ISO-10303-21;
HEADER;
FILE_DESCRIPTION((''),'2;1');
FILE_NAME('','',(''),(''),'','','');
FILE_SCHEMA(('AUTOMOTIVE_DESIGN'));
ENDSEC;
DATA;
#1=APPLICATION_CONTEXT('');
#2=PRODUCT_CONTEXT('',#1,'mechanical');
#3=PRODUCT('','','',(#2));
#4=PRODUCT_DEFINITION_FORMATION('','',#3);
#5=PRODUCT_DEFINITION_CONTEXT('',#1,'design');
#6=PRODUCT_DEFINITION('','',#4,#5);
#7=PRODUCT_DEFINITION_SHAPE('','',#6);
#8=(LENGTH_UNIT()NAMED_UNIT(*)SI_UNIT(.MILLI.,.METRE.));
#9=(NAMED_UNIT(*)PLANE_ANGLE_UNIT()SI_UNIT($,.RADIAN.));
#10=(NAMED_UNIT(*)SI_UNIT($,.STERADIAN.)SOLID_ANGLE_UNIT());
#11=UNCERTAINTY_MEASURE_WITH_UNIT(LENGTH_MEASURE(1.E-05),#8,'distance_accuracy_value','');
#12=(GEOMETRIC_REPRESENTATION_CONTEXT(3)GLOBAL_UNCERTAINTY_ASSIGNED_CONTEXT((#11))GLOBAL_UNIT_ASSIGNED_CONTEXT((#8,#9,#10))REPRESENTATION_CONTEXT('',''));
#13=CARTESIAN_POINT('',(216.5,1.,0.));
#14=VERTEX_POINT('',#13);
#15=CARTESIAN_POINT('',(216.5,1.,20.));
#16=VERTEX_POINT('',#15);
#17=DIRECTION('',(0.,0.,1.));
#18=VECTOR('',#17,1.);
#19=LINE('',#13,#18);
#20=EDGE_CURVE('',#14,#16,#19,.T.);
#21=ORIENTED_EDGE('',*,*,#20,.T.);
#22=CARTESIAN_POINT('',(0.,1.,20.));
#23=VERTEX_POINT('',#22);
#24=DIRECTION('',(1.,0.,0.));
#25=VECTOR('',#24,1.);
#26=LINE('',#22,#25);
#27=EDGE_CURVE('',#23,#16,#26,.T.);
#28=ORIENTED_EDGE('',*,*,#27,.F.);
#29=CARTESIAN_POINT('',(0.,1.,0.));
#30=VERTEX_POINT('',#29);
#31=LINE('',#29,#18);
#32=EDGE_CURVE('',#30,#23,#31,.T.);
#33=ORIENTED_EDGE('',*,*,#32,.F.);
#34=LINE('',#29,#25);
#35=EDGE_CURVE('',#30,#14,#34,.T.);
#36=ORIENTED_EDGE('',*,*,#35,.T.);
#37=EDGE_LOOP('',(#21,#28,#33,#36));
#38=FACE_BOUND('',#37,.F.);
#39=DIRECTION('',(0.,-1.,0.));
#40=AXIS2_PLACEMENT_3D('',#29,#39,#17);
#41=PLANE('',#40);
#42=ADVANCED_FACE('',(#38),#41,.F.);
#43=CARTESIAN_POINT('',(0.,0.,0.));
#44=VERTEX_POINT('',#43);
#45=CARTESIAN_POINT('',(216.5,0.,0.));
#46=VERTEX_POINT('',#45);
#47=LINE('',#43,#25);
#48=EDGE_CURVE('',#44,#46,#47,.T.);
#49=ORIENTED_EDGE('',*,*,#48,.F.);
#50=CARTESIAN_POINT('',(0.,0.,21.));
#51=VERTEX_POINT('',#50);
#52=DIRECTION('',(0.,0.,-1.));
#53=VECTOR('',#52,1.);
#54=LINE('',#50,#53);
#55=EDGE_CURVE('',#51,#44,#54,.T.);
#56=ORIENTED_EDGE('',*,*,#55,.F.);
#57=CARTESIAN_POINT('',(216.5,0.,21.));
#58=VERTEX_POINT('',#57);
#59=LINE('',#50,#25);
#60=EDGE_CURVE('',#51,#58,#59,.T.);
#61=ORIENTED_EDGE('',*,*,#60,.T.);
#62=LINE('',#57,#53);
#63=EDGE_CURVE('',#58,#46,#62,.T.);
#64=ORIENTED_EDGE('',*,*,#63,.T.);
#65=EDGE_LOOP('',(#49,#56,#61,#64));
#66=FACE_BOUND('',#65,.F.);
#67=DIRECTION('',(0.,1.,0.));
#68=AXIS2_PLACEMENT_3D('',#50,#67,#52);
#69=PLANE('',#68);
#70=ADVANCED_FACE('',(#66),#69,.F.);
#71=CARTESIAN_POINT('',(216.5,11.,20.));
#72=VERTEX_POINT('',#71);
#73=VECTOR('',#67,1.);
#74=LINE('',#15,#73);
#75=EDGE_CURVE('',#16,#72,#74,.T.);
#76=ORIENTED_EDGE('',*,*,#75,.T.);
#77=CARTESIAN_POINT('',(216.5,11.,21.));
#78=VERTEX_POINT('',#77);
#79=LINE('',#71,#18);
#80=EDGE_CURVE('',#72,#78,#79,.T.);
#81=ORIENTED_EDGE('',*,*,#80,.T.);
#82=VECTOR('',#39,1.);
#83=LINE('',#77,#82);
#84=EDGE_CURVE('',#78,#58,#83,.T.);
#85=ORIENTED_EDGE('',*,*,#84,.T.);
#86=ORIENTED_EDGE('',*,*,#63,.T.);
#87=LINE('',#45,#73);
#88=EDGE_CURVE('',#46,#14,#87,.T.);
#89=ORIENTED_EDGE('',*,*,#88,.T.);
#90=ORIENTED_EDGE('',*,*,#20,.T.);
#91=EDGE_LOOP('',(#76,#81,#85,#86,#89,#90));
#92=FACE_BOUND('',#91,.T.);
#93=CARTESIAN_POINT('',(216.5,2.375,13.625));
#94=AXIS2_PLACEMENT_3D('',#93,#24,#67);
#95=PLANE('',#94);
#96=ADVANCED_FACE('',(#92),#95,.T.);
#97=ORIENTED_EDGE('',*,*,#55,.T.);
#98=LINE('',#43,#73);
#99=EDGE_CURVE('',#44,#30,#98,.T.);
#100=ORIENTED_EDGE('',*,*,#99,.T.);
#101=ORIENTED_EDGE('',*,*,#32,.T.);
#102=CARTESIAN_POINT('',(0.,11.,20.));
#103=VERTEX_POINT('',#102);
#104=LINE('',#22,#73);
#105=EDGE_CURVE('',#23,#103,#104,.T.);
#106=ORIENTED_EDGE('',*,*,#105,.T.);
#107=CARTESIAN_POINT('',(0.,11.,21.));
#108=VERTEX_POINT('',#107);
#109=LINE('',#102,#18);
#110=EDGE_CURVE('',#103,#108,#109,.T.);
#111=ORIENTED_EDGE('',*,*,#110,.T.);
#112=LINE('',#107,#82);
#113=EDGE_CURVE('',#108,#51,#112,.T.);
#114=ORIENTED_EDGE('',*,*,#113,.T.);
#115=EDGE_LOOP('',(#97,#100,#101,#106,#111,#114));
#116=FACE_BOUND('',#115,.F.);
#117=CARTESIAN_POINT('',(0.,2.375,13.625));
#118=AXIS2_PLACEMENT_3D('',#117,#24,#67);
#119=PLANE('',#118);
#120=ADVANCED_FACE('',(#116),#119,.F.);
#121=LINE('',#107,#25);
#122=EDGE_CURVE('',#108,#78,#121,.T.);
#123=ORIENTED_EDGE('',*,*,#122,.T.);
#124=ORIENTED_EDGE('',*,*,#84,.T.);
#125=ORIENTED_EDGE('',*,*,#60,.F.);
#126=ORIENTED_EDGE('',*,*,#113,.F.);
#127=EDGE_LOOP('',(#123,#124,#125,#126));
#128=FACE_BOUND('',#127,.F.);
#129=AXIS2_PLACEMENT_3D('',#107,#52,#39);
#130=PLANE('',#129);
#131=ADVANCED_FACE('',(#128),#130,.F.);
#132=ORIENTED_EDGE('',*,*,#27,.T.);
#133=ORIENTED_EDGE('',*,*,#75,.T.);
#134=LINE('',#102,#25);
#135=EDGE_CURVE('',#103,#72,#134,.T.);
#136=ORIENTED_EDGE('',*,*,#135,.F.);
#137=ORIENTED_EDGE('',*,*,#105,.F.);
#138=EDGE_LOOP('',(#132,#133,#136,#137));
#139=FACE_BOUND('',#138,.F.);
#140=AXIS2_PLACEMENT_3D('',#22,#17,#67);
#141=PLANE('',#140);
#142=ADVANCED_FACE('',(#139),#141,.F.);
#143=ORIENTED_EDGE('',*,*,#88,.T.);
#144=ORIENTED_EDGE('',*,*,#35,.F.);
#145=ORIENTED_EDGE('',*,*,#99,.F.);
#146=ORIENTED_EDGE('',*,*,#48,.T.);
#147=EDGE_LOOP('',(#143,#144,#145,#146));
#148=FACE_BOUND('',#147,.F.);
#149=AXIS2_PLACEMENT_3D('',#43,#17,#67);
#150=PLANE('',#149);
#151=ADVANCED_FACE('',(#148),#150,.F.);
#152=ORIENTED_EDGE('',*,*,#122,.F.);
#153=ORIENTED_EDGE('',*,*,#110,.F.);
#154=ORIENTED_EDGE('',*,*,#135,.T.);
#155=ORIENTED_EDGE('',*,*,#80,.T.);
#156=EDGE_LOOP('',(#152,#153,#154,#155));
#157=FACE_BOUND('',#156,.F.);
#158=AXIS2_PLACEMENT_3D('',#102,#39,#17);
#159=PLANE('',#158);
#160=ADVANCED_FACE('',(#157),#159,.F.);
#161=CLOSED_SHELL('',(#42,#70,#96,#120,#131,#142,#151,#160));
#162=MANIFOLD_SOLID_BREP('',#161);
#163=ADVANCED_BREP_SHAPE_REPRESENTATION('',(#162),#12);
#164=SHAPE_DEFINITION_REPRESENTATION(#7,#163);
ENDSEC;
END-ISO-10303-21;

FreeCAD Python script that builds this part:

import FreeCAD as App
import Part
import Sketcher

doc = App.newDocument("Part")
body = doc.addObject("PartDesign::Body", "Body")

# Sketch on YZ plane
sketch1 = body.newObject("Sketcher::SketchObject", "Sketch")
sketch1.AttachmentSupport = (doc.getObject("YZ_Plane"), [""])
sketch1.MapMode = "FlatFace"
sketch1.addGeometry([
    Part.LineSegment(App.Vector(1, 20, 0), App.Vector(11, 20, 0)),  # 0
    Part.LineSegment(App.Vector(11, 20, 0), App.Vector(11, 21, 0)),  # 1
    Part.LineSegment(App.Vector(11, 21, 0), App.Vector(0, 21, 0)),  # 2
    Part.LineSegment(App.Vector(0, 21, 0), App.Vector(0, 0, 0)),  # 3
    Part.LineSegment(App.Vector(0, 0, 0), App.Vector(1, 0, 0)),  # 4
    Part.LineSegment(App.Vector(1, 0, 0), App.Vector(1, 20, 0)),  # 5
], False)
sketch1.addConstraint([
    Sketcher.Constraint("Coincident", 0, 2, 1, 1),
    Sketcher.Constraint("Coincident", 1, 2, 2, 1),
    Sketcher.Constraint("Coincident", 2, 2, 3, 1),
    Sketcher.Constraint("Coincident", 3, 2, 4, 1),
    Sketcher.Constraint("Coincident", 4, 2, 5, 1),
    Sketcher.Constraint("Coincident", 5, 2, 0, 1),
    Sketcher.Constraint("Horizontal", 0),
    Sketcher.Constraint("Vertical", 1),
    Sketcher.Constraint("Horizontal", 2),
    Sketcher.Constraint("Vertical", 3),
    Sketcher.Constraint("Horizontal", 4),
    Sketcher.Constraint("Vertical", 5),
    Sketcher.Constraint("Coincident", 3, 2, -1, 1),
    Sketcher.Constraint("Equal", 4, 1),
    Sketcher.Constraint("DistanceX", 0, 1, 0, 2, 10.0),
    Sketcher.Constraint("DistanceX", 2, 2, 2, 1, 11.0),
    Sketcher.Constraint("DistanceY", 3, 2, 3, 1, 21.0),
])
pad1 = body.newObject("PartDesign::Pad", "Pad")
pad1.Profile = sketch1
pad1.Length = 216.5

doc.recompute()
